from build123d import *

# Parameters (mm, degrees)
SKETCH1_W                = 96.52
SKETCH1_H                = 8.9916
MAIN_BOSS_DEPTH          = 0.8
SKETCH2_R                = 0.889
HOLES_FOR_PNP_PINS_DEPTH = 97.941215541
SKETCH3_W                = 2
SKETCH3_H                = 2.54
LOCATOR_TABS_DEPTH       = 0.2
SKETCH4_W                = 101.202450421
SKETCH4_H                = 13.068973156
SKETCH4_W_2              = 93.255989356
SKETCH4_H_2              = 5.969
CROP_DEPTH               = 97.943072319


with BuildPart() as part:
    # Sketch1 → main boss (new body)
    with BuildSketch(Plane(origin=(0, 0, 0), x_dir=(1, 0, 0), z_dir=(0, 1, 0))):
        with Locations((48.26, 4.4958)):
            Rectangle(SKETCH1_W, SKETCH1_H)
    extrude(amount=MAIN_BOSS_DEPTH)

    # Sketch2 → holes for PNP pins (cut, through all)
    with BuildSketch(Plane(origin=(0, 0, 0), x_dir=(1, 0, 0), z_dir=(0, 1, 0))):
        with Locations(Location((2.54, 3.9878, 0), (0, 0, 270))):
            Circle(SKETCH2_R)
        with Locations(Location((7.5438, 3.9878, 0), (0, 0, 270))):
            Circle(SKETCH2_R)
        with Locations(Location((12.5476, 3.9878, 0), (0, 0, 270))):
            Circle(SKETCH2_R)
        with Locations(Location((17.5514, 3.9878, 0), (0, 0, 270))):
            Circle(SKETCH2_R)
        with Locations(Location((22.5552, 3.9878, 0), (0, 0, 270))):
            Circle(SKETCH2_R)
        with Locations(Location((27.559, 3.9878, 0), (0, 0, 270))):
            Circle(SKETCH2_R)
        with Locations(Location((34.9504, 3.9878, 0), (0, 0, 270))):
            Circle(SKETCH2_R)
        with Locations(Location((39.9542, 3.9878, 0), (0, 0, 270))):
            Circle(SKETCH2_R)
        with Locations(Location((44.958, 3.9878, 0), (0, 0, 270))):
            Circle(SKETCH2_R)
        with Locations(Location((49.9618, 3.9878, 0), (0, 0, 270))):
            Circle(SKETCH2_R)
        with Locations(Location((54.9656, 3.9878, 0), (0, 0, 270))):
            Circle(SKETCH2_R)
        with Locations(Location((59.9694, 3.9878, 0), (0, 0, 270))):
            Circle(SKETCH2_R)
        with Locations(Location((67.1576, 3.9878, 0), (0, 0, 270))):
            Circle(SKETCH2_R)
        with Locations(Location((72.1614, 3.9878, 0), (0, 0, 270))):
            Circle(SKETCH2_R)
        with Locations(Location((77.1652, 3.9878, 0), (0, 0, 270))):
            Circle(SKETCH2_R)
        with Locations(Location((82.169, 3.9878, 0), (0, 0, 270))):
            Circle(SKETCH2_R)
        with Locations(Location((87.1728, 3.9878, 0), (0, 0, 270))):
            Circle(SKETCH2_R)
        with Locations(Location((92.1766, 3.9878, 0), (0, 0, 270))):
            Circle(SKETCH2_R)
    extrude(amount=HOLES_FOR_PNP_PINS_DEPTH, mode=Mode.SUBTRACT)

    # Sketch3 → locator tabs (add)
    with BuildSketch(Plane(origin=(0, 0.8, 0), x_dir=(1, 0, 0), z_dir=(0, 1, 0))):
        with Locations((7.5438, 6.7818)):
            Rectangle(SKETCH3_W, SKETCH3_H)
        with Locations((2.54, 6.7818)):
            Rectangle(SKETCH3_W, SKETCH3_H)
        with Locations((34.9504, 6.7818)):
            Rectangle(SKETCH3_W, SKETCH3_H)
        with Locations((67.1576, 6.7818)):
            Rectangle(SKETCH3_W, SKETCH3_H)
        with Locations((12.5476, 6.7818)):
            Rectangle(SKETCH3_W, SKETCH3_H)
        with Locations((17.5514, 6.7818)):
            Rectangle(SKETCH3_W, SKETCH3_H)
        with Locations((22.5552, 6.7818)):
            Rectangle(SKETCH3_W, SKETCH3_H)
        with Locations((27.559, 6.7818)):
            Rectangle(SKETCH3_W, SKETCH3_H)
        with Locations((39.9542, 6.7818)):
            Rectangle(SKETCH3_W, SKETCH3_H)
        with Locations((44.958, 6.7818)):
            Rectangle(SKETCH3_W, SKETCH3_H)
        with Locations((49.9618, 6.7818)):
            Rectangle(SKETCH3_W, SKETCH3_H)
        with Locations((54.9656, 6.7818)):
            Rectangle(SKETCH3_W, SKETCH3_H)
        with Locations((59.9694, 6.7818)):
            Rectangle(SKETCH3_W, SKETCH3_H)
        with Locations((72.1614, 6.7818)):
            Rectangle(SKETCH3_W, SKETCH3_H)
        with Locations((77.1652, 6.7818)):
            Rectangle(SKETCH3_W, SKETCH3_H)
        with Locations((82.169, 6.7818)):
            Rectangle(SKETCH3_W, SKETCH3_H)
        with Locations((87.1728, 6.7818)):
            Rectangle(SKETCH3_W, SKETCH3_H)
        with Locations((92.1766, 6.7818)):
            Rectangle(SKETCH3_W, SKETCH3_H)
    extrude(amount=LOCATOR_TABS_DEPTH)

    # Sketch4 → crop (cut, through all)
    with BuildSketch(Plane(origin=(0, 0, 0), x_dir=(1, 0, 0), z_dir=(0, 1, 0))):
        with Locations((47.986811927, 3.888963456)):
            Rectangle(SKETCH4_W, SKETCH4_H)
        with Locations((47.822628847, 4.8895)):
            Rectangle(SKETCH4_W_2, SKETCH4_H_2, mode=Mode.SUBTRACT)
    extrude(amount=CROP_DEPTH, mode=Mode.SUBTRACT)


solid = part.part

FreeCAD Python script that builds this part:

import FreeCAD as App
import Part
import Sketcher

V = App.Vector
Q = App.Units.Quantity

doc = App.newDocument("Part")
body = doc.addObject("PartDesign::Body", "Body")

# Sketch on XZ plane
sketch1 = body.newObject("Sketcher::SketchObject", "Sketch")
sketch1.AttachmentSupport = (doc.getObject("XZ_Plane"), [""])
sketch1.MapMode = "FlatFace"
sketch1.addGeometry(Part.LineSegment(V(0, -9, 0), V(0, 0, 0)), False)
sketch1.addGeometry(Part.LineSegment(V(0, 0, 0), V(97, 0, 0)), False)
sketch1.addGeometry(Part.LineSegment(V(97, 0, 0), V(97, -9, 0)), False)
sketch1.addGeometry(Part.LineSegment(V(97, -9, 0), V(0, -9, 0)), False)
sketch1.addConstraint(Sketcher.Constraint("Coincident", 0, 2, 1, 1))
sketch1.addConstraint(Sketcher.Constraint("Coincident", 1, 2, 2, 1))
sketch1.addConstraint(Sketcher.Constraint("Coincident", 2, 2, 3, 1))
sketch1.addConstraint(Sketcher.Constraint("Coincident", 3, 2, 0, 1))
sketch1.addConstraint(Sketcher.Constraint("Vertical", 0))
sketch1.addConstraint(Sketcher.Constraint("Horizontal", 1))
sketch1.addConstraint(Sketcher.Constraint("Vertical", 2))
sketch1.addConstraint(Sketcher.Constraint("Horizontal", 3))
sketch1.addConstraint(Sketcher.Constraint("Coincident", 0, 2, -1, 1))
sketch1.addConstraint(Sketcher.Constraint("DistanceX", 1, 1, 1, 2, Q("3.8 in")))
sketch1.addConstraint(Sketcher.Constraint("DistanceY", 0, 1, 0, 2, Q("0.354 in")))
pad1 = body.newObject("PartDesign::Pad", "Pad")
pad1.Profile = sketch1
pad1.Length = 0.8
pad1.Reversed = True

# Sketch on XZ plane
sketch2 = body.newObject("Sketcher::SketchObject", "Sketch001")
sketch2.AttachmentSupport = (doc.getObject("XZ_Plane"), [""])
sketch2.MapMode = "FlatFace"
sketch2.addGeometry(Part.Circle(V(2.5, -4, 0), V(0, 0, 1), 0.9), False)
sketch2.addGeometry(Part.Circle(V(7.5, -4, 0), V(0, 0, 1), 0.9), False)
sketch2.addGeometry(Part.Circle(V(12.5, -4, 0), V(0, 0, 1), 0.9), False)
sketch2.addGeometry(Part.Circle(V(17.6, -4, 0), V(0, 0, 1), 0.9), False)
sketch2.addGeometry(Part.Circle(V(22.6, -4, 0), V(0, 0, 1), 0.9), False)
sketch2.addGeometry(Part.Circle(V(27.6, -4, 0), V(0, 0, 1), 0.9), False)
sketch2.addGeometry(Part.Circle(V(35, -4, 0), V(0, 0, 1), 0.9), False)
sketch2.addGeometry(Part.Circle(V(40, -4, 0), V(0, 0, 1), 0.9), False)
sketch2.addGeometry(Part.Circle(V(45, -4, 0), V(0, 0, 1), 0.9), False)
sketch2.addGeometry(Part.Circle(V(50, -4, 0), V(0, 0, 1), 0.9), False)
sketch2.addGeometry(Part.Circle(V(55, -4, 0), V(0, 0, 1), 0.9), False)
sketch2.addGeometry(Part.Circle(V(60, -4, 0), V(0, 0, 1), 0.9), False)
sketch2.addGeometry(Part.Circle(V(67.2, -4, 0), V(0, 0, 1), 0.9), False)
sketch2.addGeometry(Part.Circle(V(72.2, -4, 0), V(0, 0, 1), 0.9), False)
sketch2.addGeometry(Part.Circle(V(77.2, -4, 0), V(0, 0, 1), 0.9), False)
sketch2.addGeometry(Part.Circle(V(82.2, -4, 0), V(0, 0, 1), 0.9), False)
sketch2.addGeometry(Part.Circle(V(87.2, -4, 0), V(0, 0, 1), 0.9), False)
sketch2.addGeometry(Part.Circle(V(92.2, -4, 0), V(0, 0, 1), 0.9), False)
sketch2.addConstraint(Sketcher.Constraint("Equal", 0, 1))
sketch2.addConstraint(Sketcher.Constraint("Equal", 1, 2))
sketch2.addConstraint(Sketcher.Constraint("Equal", 2, 3))
sketch2.addConstraint(Sketcher.Constraint("Equal", 3, 4))
sketch2.addConstraint(Sketcher.Constraint("Equal", 4, 5))
sketch2.addConstraint(Sketcher.Constraint("Equal", 5, 6))
sketch2.addConstraint(Sketcher.Constraint("Equal", 6, 7))
sketch2.addConstraint(Sketcher.Constraint("Equal", 7, 8))
sketch2.addConstraint(Sketcher.Constraint("Equal", 8, 9))
sketch2.addConstraint(Sketcher.Constraint("Equal", 9, 10))
sketch2.addConstraint(Sketcher.Constraint("Equal", 10, 11))
sketch2.addConstraint(Sketcher.Constraint("Equal", 11, 12))
sketch2.addConstraint(Sketcher.Constraint("Equal", 12, 13))
sketch2.addConstraint(Sketcher.Constraint("Equal", 13, 14))
sketch2.addConstraint(Sketcher.Constraint("Equal", 14, 15))
sketch2.addConstraint(Sketcher.Constraint("Equal", 15, 16))
sketch2.addConstraint(Sketcher.Constraint("Equal", 16, 17))
sketch2.addConstraint(Sketcher.Constraint("Horizontal", 0, 3, 1, 3))
sketch2.addConstraint(Sketcher.Constraint("Horizontal", 1, 3, 2, 3))
sketch2.addConstraint(Sketcher.Constraint("Horizontal", 2, 3, 3, 3))
sketch2.addConstraint(Sketcher.Constraint("Horizontal", 3, 3, 4, 3))
sketch2.addConstraint(Sketcher.Constraint("Horizontal", 4, 3, 5, 3))
sketch2.addConstraint(Sketcher.Constraint("Horizontal", 5, 3, 6, 3))
sketch2.addConstraint(Sketcher.Constraint("Horizontal", 6, 3, 7, 3))
sketch2.addConstraint(Sketcher.Constraint("Horizontal", 7, 3, 8, 3))
sketch2.addConstraint(Sketcher.Constraint("Horizontal", 8, 3, 9, 3))
sketch2.addConstraint(Sketcher.Constraint("Horizontal", 9, 3, 10, 3))
sketch2.addConstraint(Sketcher.Constraint("Horizontal", 10, 3, 11, 3))
sketch2.addConstraint(Sketcher.Constraint("Horizontal", 11, 3, 12, 3))
sketch2.addConstraint(Sketcher.Constraint("Horizontal", 12, 3, 13, 3))
sketch2.addConstraint(Sketcher.Constraint("Horizontal", 13, 3, 14, 3))
sketch2.addConstraint(Sketcher.Constraint("Horizontal", 14, 3, 15, 3))
sketch2.addConstraint(Sketcher.Constraint("Horizontal", 15, 3, 16, 3))
sketch2.addConstraint(Sketcher.Constraint("Horizontal", 16, 3, 17, 3))
sketch2.addConstraint(Sketcher.Constraint("Diameter", 0, Q("0.07 in")))
sketch2.addConstraint(Sketcher.Constraint("DistanceX", -1, 1, 0, 3, Q("0.1 in")))
sketch2.addConstraint(Sketcher.Constraint("DistanceX", -1, 1, 8, 3, Q("1.77 in")))
sketch2.addConstraint(Sketcher.Constraint("DistanceX", 10, 3, 12, 3, Q("0.48 in")))
sketch2.addConstraint(Sketcher.Constraint("DistanceX", 11, 3, 13, 3, Q("0.48 in")))
sketch2.addConstraint(Sketcher.Constraint("DistanceY", 0, 3, -1, 1, Q("0.157 in")))
sketch2.addConstraint(Sketcher.Constraint("DistanceX", -1, 1, 1, 3, Q("0.297 in")))
sketch2.addConstraint(Sketcher.Constraint("DistanceX", -1, 1, 2, 3, Q("0.494 in")))
sketch2.addConstraint(Sketcher.Constraint("DistanceX", -1, 1, 3, 3, Q("0.691 in")))
sketch2.addConstraint(Sketcher.Constraint("DistanceX", -1, 1, 4, 3, Q("0.888 in")))
sketch2.addConstraint(Sketcher.Constraint("DistanceX", -1, 1, 5, 3, Q("1.085 in")))
sketch2.addConstraint(Sketcher.Constraint("DistanceX", -1, 1, 6, 3, Q("1.376 in")))
sketch2.addConstraint(Sketcher.Constraint("DistanceX", -1, 1, 7, 3, Q("1.573 in")))
sketch2.addConstraint(Sketcher.Constraint("DistanceX", -1, 1, 9, 3, Q("1.967 in")))
sketch2.addConstraint(Sketcher.Constraint("DistanceX", -1, 1, 10, 3, Q("2.164 in")))
sketch2.addConstraint(Sketcher.Constraint("DistanceX", -1, 1, 11, 3, Q("2.361 in")))
sketch2.addConstraint(Sketcher.Constraint("DistanceX", -1, 1, 14, 3, Q("3.038 in")))
sketch2.addConstraint(Sketcher.Constraint("DistanceX", -1, 1, 15, 3, Q("3.235 in")))
sketch2.addConstraint(Sketcher.Constraint("DistanceX", -1, 1, 16, 3, Q("3.432 in")))
sketch2.addConstraint(Sketcher.Constraint("DistanceX", -1, 1, 17, 3, Q("3.629 in")))
pocket1 = body.newObject("PartDesign::Pocket", "Pocket")
pocket1.Profile = sketch2
pocket1.Type = "ThroughAll"

# Sketch on XZ plane
sketch3 = body.newObject("Sketcher::SketchObject", "Sketch002")
sketch3.AttachmentSupport = (doc.getObject("XZ_Plane"), [""])
sketch3.MapMode = "FlatFace"
sketch3.AttachmentOffset = App.Placement(V(0, 0, -0.8), App.Rotation())
sketch3.addGeometry(Part.LineSegment(V(6.5, -8.1, 0), V(6.5, -5.5, 0)), False)
sketch3.addGeometry(Part.LineSegment(V(6.5, -5.5, 0), V(8.5, -5.5, 0)), False)
sketch3.addGeometry(Part.LineSegment(V(8.5, -5.5, 0), V(8.5, -8.1, 0)), False)
sketch3.addGeometry(Part.LineSegment(V(8.5, -8.1, 0), V(6.5, -8.1, 0)), False)
sketch3.addGeometry(Part.LineSegment(V(1.5, -8.1, 0), V(1.5, -5.5, 0)), False)
sketch3.addGeometry(Part.LineSegment(V(1.5, -5.5, 0), V(3.5, -5.5, 0)), False)
sketch3.addGeometry(Part.LineSegment(V(3.5, -5.5, 0), V(3.5, -8.1, 0)), False)
sketch3.addGeometry(Part.LineSegment(V(3.5, -8.1, 0), V(1.5, -8.1, 0)), False)
sketch3.addGeometry(Part.LineSegment(V(34, -8.1, 0), V(34, -5.5, 0)), False)
sketch3.addGeometry(Part.LineSegment(V(34, -5.5, 0), V(36, -5.5, 0)), False)
sketch3.addGeometry(Part.LineSegment(V(36, -5.5, 0), V(36, -8.1, 0)), False)
sketch3.addGeometry(Part.LineSegment(V(36, -8.1, 0), V(34, -8.1, 0)), False)
sketch3.addGeometry(Part.LineSegment(V(66.2, -8.1, 0), V(66.2, -5.5, 0)), False)
sketch3.addGeometry(Part.LineSegment(V(66.2, -5.5, 0), V(68.2, -5.5, 0)), False)
sketch3.addGeometry(Part.LineSegment(V(68.2, -5.5, 0), V(68.2, -8.1, 0)), False)
sketch3.addGeometry(Part.LineSegment(V(68.2, -8.1, 0), V(66.2, -8.1, 0)), False)
sketch3.addGeometry(Part.LineSegment(V(11.5, -8.1, 0), V(11.5, -5.5, 0)), False)
sketch3.addGeometry(Part.LineSegment(V(11.5, -5.5, 0), V(13.5, -5.5, 0)), False)
sketch3.addGeometry(Part.LineSegment(V(13.5, -5.5, 0), V(13.5, -8.1, 0)), False)
sketch3.addGeometry(Part.LineSegment(V(13.5, -8.1, 0), V(11.5, -8.1, 0)), False)
sketch3.addGeometry(Part.LineSegment(V(16.6, -8.1, 0), V(16.6, -5.5, 0)), False)
sketch3.addGeometry(Part.LineSegment(V(16.6, -5.5, 0), V(18.6, -5.5, 0)), False)
sketch3.addGeometry(Part.LineSegment(V(18.6, -5.5, 0), V(18.6, -8.1, 0)), False)
sketch3.addGeometry(Part.LineSegment(V(18.6, -8.1, 0), V(16.6, -8.1, 0)), False)
sketch3.addGeometry(Part.LineSegment(V(21.6, -8.1, 0), V(21.6, -5.5, 0)), False)
sketch3.addGeometry(Part.LineSegment(V(21.6, -5.5, 0), V(23.6, -5.5, 0)), False)
sketch3.addGeometry(Part.LineSegment(V(23.6, -5.5, 0), V(23.6, -8.1, 0)), False)
sketch3.addGeometry(Part.LineSegment(V(23.6, -8.1, 0), V(21.6, -8.1, 0)), False)
sketch3.addGeometry(Part.LineSegment(V(26.6, -8.1, 0), V(26.6, -5.5, 0)), False)
sketch3.addGeometry(Part.LineSegment(V(26.6, -5.5, 0), V(28.6, -5.5, 0)), False)
sketch3.addGeometry(Part.LineSegment(V(28.6, -5.5, 0), V(28.6, -8.1, 0)), False)
sketch3.addGeometry(Part.LineSegment(V(28.6, -8.1, 0), V(26.6, -8.1, 0)), False)
sketch3.addGeometry(Part.LineSegment(V(39, -8.1, 0), V(39, -5.5, 0)), False)
sketch3.addGeometry(Part.LineSegment(V(39, -5.5, 0), V(41, -5.5, 0)), False)
sketch3.addGeometry(Part.LineSegment(V(41, -5.5, 0), V(41, -8.1, 0)), False)
sketch3.addGeometry(Part.LineSegment(V(41, -8.1, 0), V(39, -8.1, 0)), False)
sketch3.addGeometry(Part.LineSegment(V(44, -8.1, 0), V(44, -5.5, 0)), False)
sketch3.addGeometry(Part.LineSegment(V(44, -5.5, 0), V(46, -5.5, 0)), False)
sketch3.addGeometry(Part.LineSegment(V(46, -5.5, 0), V(46, -8.1, 0)), False)
sketch3.addGeometry(Part.LineSegment(V(46, -8.1, 0), V(44, -8.1, 0)), False)
sketch3.addGeometry(Part.LineSegment(V(49, -8.1, 0), V(49, -5.5, 0)), False)
sketch3.addGeometry(Part.LineSegment(V(49, -5.5, 0), V(51, -5.5, 0)), False)
sketch3.addGeometry(Part.LineSegment(V(51, -5.5, 0), V(51, -8.1, 0)), False)
sketch3.addGeometry(Part.LineSegment(V(51, -8.1, 0), V(49, -8.1, 0)), False)
sketch3.addGeometry(Part.LineSegment(V(54, -8.1, 0), V(54, -5.5, 0)), False)
sketch3.addGeometry(Part.LineSegment(V(54, -5.5, 0), V(56, -5.5, 0)), False)
sketch3.addGeometry(Part.LineSegment(V(56, -5.5, 0), V(56, -8.1, 0)), False)
sketch3.addGeometry(Part.LineSegment(V(56, -8.1, 0), V(54, -8.1, 0)), False)
sketch3.addGeometry(Part.LineSegment(V(59, -8.1, 0), V(59, -5.5, 0)), False)
sketch3.addGeometry(Part.LineSegment(V(59, -5.5, 0), V(61, -5.5, 0)), False)
sketch3.addGeometry(Part.LineSegment(V(61, -5.5, 0), V(61, -8.1, 0)), False)
sketch3.addGeometry(Part.LineSegment(V(61, -8.1, 0), V(59, -8.1, 0)), False)
sketch3.addGeometry(Part.LineSegment(V(71.2, -8.1, 0), V(71.2, -5.5, 0)), False)
sketch3.addGeometry(Part.LineSegment(V(71.2, -5.5, 0), V(73.2, -5.5, 0)), False)
sketch3.addGeometry(Part.LineSegment(V(73.2, -5.5, 0), V(73.2, -8.1, 0)), False)
sketch3.addGeometry(Part.LineSegment(V(73.2, -8.1, 0), V(71.2, -8.1, 0)), False)
sketch3.addGeometry(Part.LineSegment(V(76.2, -8.1, 0), V(76.2, -5.5, 0)), False)
sketch3.addGeometry(Part.LineSegment(V(76.2, -5.5, 0), V(78.2, -5.5, 0)), False)
sketch3.addGeometry(Part.LineSegment(V(78.2, -5.5, 0), V(78.2, -8.1, 0)), False)
sketch3.addGeometry(Part.LineSegment(V(78.2, -8.1, 0), V(76.2, -8.1, 0)), False)
sketch3.addGeometry(Part.LineSegment(V(81.2, -8.1, 0), V(81.2, -5.5, 0)), False)
sketch3.addGeometry(Part.LineSegment(V(81.2, -5.5, 0), V(83.2, -5.5, 0)), False)
sketch3.addGeometry(Part.LineSegment(V(83.2, -5.5, 0), V(83.2, -8.1, 0)), False)
sketch3.addGeometry(Part.LineSegment(V(83.2, -8.1, 0), V(81.2, -8.1, 0)), False)
sketch3.addGeometry(Part.LineSegment(V(86.2, -8.1, 0), V(86.2, -5.5, 0)), False)
sketch3.addGeometry(Part.LineSegment(V(86.2, -5.5, 0), V(88.2, -5.5, 0)), False)
sketch3.addGeometry(Part.LineSegment(V(88.2, -5.5, 0), V(88.2, -8.1, 0)), False)
sketch3.addGeometry(Part.LineSegment(V(88.2, -8.1, 0), V(86.2, -8.1, 0)), False)
sketch3.addGeometry(Part.LineSegment(V(91.2, -8.1, 0), V(91.2, -5.5, 0)), False)
sketch3.addGeometry(Part.LineSegment(V(91.2, -5.5, 0), V(93.2, -5.5, 0)), False)
sketch3.addGeometry(Part.LineSegment(V(93.2, -5.5, 0), V(93.2, -8.1, 0)), False)
sketch3.addGeometry(Part.LineSegment(V(93.2, -8.1, 0), V(91.2, -8.1, 0)), False)
sketch3.addConstraint(Sketcher.Constraint("Coincident", 0, 2, 1, 1))
sketch3.addConstraint(Sketcher.Constraint("Coincident", 1, 2, 2, 1))
sketch3.addConstraint(Sketcher.Constraint("Coincident", 2, 2, 3, 1))
sketch3.addConstraint(Sketcher.Constraint("Coincident", 3, 2, 0, 1))
sketch3.addConstraint(Sketcher.Constraint("Coincident", 4, 2, 5, 1))
sketch3.addConstraint(Sketcher.Constraint("Coincident", 5, 2, 6, 1))
sketch3.addConstraint(Sketcher.Constraint("Coincident", 6, 2, 7, 1))
sketch3.addConstraint(Sketcher.Constraint("Coincident", 7, 2, 4, 1))
sketch3.addConstraint(Sketcher.Constraint("Coincident", 8, 2, 9, 1))
sketch3.addConstraint(Sketcher.Constraint("Coincident", 9, 2, 10, 1))
sketch3.addConstraint(Sketcher.Constraint("Coincident", 10, 2, 11, 1))
sketch3.addConstraint(Sketcher.Constraint("Coincident", 11, 2, 8, 1))
sketch3.addConstraint(Sketcher.Constraint("Coincident", 12, 2, 13, 1))
sketch3.addConstraint(Sketcher.Constraint("Coincident", 13, 2, 14, 1))
sketch3.addConstraint(Sketcher.Constraint("Coincident", 14, 2, 15, 1))
sketch3.addConstraint(Sketcher.Constraint("Coincident", 15, 2, 12, 1))
sketch3.addConstraint(Sketcher.Constraint("Coincident", 16, 2, 17, 1))
sketch3.addConstraint(Sketcher.Constraint("Coincident", 17, 2, 18, 1))
sketch3.addConstraint(Sketcher.Constraint("Coincident", 18, 2, 19, 1))
sketch3.addConstraint(Sketcher.Constraint("Coincident", 19, 2, 16, 1))
sketch3.addConstraint(Sketcher.Constraint("Coincident", 20, 2, 21, 1))
sketch3.addConstraint(Sketcher.Constraint("Coincident", 21, 2, 22, 1))
sketch3.addConstraint(Sketcher.Constraint("Coincident", 22, 2, 23, 1))
sketch3.addConstraint(Sketcher.Constraint("Coincident", 23, 2, 20, 1))
sketch3.addConstraint(Sketcher.Constraint("Coincident", 24, 2, 25, 1))
sketch3.addConstraint(Sketcher.Constraint("Coincident", 25, 2, 26, 1))
sketch3.addConstraint(Sketcher.Constraint("Coincident", 26, 2, 27, 1))
sketch3.addConstraint(Sketcher.Constraint("Coincident", 27, 2, 24, 1))
sketch3.addConstraint(Sketcher.Constraint("Coincident", 28, 2, 29, 1))
sketch3.addConstraint(Sketcher.Constraint("Coincident", 29, 2, 30, 1))
sketch3.addConstraint(Sketcher.Constraint("Coincident", 30, 2, 31, 1))
sketch3.addConstraint(Sketcher.Constraint("Coincident", 31, 2, 28, 1))
sketch3.addConstraint(Sketcher.Constraint("Coincident", 32, 2, 33, 1))
sketch3.addConstraint(Sketcher.Constraint("Coincident", 33, 2, 34, 1))
sketch3.addConstraint(Sketcher.Constraint("Coincident", 34, 2, 35, 1))
sketch3.addConstraint(Sketcher.Constraint("Coincident", 35, 2, 32, 1))
sketch3.addConstraint(Sketcher.Constraint("Coincident", 36, 2, 37, 1))
sketch3.addConstraint(Sketcher.Constraint("Coincident", 37, 2, 38, 1))
sketch3.addConstraint(Sketcher.Constraint("Coincident", 38, 2, 39, 1))
sketch3.addConstraint(Sketcher.Constraint("Coincident", 39, 2, 36, 1))
sketch3.addConstraint(Sketcher.Constraint("Coincident", 40, 2, 41, 1))
sketch3.addConstraint(Sketcher.Constraint("Coincident", 41, 2, 42, 1))
sketch3.addConstraint(Sketcher.Constraint("Coincident", 42, 2, 43, 1))
sketch3.addConstraint(Sketcher.Constraint("Coincident", 43, 2, 40, 1))
sketch3.addConstraint(Sketcher.Constraint("Coincident", 44, 2, 45, 1))
sketch3.addConstraint(Sketcher.Constraint("Coincident", 45, 2, 46, 1))
sketch3.addConstraint(Sketcher.Constraint("Coincident", 46, 2, 47, 1))
sketch3.addConstraint(Sketcher.Constraint("Coincident", 47, 2, 44, 1))
sketch3.addConstraint(Sketcher.Constraint("Coincident", 48, 2, 49, 1))
sketch3.addConstraint(Sketcher.Constraint("Coincident", 49, 2, 50, 1))
sketch3.addConstraint(Sketcher.Constraint("Coincident", 50, 2, 51, 1))
sketch3.addConstraint(Sketcher.Constraint("Coincident", 51, 2, 48, 1))
sketch3.addConstraint(Sketcher.Constraint("Coincident", 52, 2, 53, 1))
sketch3.addConstraint(Sketcher.Constraint("Coincident", 53, 2, 54, 1))
sketch3.addConstraint(Sketcher.Constraint("Coincident", 54, 2, 55, 1))
sketch3.addConstraint(Sketcher.Constraint("Coincident", 55, 2, 52, 1))
sketch3.addConstraint(Sketcher.Constraint("Coincident", 56, 2, 57, 1))
sketch3.addConstraint(Sketcher.Constraint("Coincident", 57, 2, 58, 1))
sketch3.addConstraint(Sketcher.Constraint("Coincident", 58, 2, 59, 1))
sketch3.addConstraint(Sketcher.Constraint("Coincident", 59, 2, 56, 1))
sketch3.addConstraint(Sketcher.Constraint("Coincident", 60, 2, 61, 1))
sketch3.addConstraint(Sketcher.Constraint("Coincident", 61, 2, 62, 1))
sketch3.addConstraint(Sketcher.Constraint("Coincident", 62, 2, 63, 1))
sketch3.addConstraint(Sketcher.Constraint("Coincident", 63, 2, 60, 1))
sketch3.addConstraint(Sketcher.Constraint("Coincident", 64, 2, 65, 1))
sketch3.addConstraint(Sketcher.Constraint("Coincident", 65, 2, 66, 1))
sketch3.addConstraint(Sketcher.Constraint("Coincident", 66, 2, 67, 1))
sketch3.addConstraint(Sketcher.Constraint("Coincident", 67, 2, 64, 1))
sketch3.addConstraint(Sketcher.Constraint("Coincident", 68, 2, 69, 1))
sketch3.addConstraint(Sketcher.Constraint("Coincident", 69, 2, 70, 1))
sketch3.addConstraint(Sketcher.Constraint("Coincident", 70, 2, 71, 1))
sketch3.addConstraint(Sketcher.Constraint("Coincident", 71, 2, 68, 1))
sketch3.addConstraint(Sketcher.Constraint("Vertical", 0))
sketch3.addConstraint(Sketcher.Constraint("Horizontal", 1))
sketch3.addConstraint(Sketcher.Constraint("Vertical", 2))
sketch3.addConstraint(Sketcher.Constraint("Horizontal", 3))
sketch3.addConstraint(Sketcher.Constraint("Vertical", 4))
sketch3.addConstraint(Sketcher.Constraint("Horizontal", 5))
sketch3.addConstraint(Sketcher.Constraint("Vertical", 6))
sketch3.addConstraint(Sketcher.Constraint("Horizontal", 7))
sketch3.addConstraint(Sketcher.Constraint("Vertical", 8))
sketch3.addConstraint(Sketcher.Constraint("Horizontal", 9))
sketch3.addConstraint(Sketcher.Constraint("Vertical", 10))
sketch3.addConstraint(Sketcher.Constraint("Horizontal", 11))
sketch3.addConstraint(Sketcher.Constraint("Vertical", 12))
sketch3.addConstraint(Sketcher.Constraint("Horizontal", 13))
sketch3.addConstraint(Sketcher.Constraint("Vertical", 14))
sketch3.addConstraint(Sketcher.Constraint("Horizontal", 15))
sketch3.addConstraint(Sketcher.Constraint("Vertical", 16))
sketch3.addConstraint(Sketcher.Constraint("Horizontal", 17))
sketch3.addConstraint(Sketcher.Constraint("Vertical", 18))
sketch3.addConstraint(Sketcher.Constraint("Horizontal", 19))
sketch3.addConstraint(Sketcher.Constraint("Vertical", 20))
sketch3.addConstraint(Sketcher.Constraint("Horizontal", 21))
sketch3.addConstraint(Sketcher.Constraint("Vertical", 22))
sketch3.addConstraint(Sketcher.Constraint("Horizontal", 23))
sketch3.addConstraint(Sketcher.Constraint("Vertical", 24))
sketch3.addConstraint(Sketcher.Constraint("Horizontal", 25))
sketch3.addConstraint(Sketcher.Constraint("Vertical", 26))
sketch3.addConstraint(Sketcher.Constraint("Horizontal", 27))
sketch3.addConstraint(Sketcher.Constraint("Vertical", 28))
sketch3.addConstraint(Sketcher.Constraint("Horizontal", 29))
sketch3.addConstraint(Sketcher.Constraint("Vertical", 30))
sketch3.addConstraint(Sketcher.Constraint("Horizontal", 31))
sketch3.addConstraint(Sketcher.Constraint("Vertical", 32))
sketch3.addConstraint(Sketcher.Constraint("Horizontal", 33))
sketch3.addConstraint(Sketcher.Constraint("Vertical", 34))
sketch3.addConstraint(Sketcher.Constraint("Horizontal", 35))
sketch3.addConstraint(Sketcher.Constraint("Vertical", 36))
sketch3.addConstraint(Sketcher.Constraint("Horizontal", 37))
sketch3.addConstraint(Sketcher.Constraint("Vertical", 38))
sketch3.addConstraint(Sketcher.Constraint("Horizontal", 39))
sketch3.addConstraint(Sketcher.Constraint("Vertical", 40))
sketch3.addConstraint(Sketcher.Constraint("Horizontal", 41))
sketch3.addConstraint(Sketcher.Constraint("Vertical", 42))
sketch3.addConstraint(Sketcher.Constraint("Horizontal", 43))
sketch3.addConstraint(Sketcher.Constraint("Vertical", 44))
sketch3.addConstraint(Sketcher.Constraint("Horizontal", 45))
sketch3.addConstraint(Sketcher.Constraint("Vertical", 46))
sketch3.addConstraint(Sketcher.Constraint("Horizontal", 47))
sketch3.addConstraint(Sketcher.Constraint("Vertical", 48))
sketch3.addConstraint(Sketcher.Constraint("Horizontal", 49))
sketch3.addConstraint(Sketcher.Constraint("Vertical", 50))
sketch3.addConstraint(Sketcher.Constraint("Horizontal", 51))
sketch3.addConstraint(Sketcher.Constraint("Vertical", 52))
sketch3.addConstraint(Sketcher.Constraint("Horizontal", 53))
sketch3.addConstraint(Sketcher.Constraint("Vertical", 54))
sketch3.addConstraint(Sketcher.Constraint("Horizontal", 55))
sketch3.addConstraint(Sketcher.Constraint("Vertical", 56))
sketch3.addConstraint(Sketcher.Constraint("Horizontal", 57))
sketch3.addConstraint(Sketcher.Constraint("Vertical", 58))
sketch3.addConstraint(Sketcher.Constraint("Horizontal", 59))
sketch3.addConstraint(Sketcher.Constraint("Vertical", 60))
sketch3.addConstraint(Sketcher.Constraint("Horizontal", 61))
sketch3.addConstraint(Sketcher.Constraint("Vertical", 62))
sketch3.addConstraint(Sketcher.Constraint("Horizontal", 63))
sketch3.addConstraint(Sketcher.Constraint("Vertical", 64))
sketch3.addConstraint(Sketcher.Constraint("Horizontal", 65))
sketch3.addConstraint(Sketcher.Constraint("Vertical", 66))
sketch3.addConstraint(Sketcher.Constraint("Horizontal", 67))
sketch3.addConstraint(Sketcher.Constraint("Vertical", 68))
sketch3.addConstraint(Sketcher.Constraint("Horizontal", 69))
sketch3.addConstraint(Sketcher.Constraint("Vertical", 70))
sketch3.addConstraint(Sketcher.Constraint("Horizontal", 71))
sketch3.addConstraint(Sketcher.Constraint("Horizontal", 1, 2, 4, 2))
sketch3.addConstraint(Sketcher.Constraint("Horizontal", 3, 2, 6, 2))
sketch3.addConstraint(Sketcher.Constraint("Horizontal", 5, 2, 8, 2))
sketch3.addConstraint(Sketcher.Constraint("Horizontal", 7, 2, 10, 2))
sketch3.addConstraint(Sketcher.Constraint("Horizontal", 9, 2, 12, 2))
sketch3.addConstraint(Sketcher.Constraint("Horizontal", 11, 2, 14, 2))
sketch3.addConstraint(Sketcher.Constraint("Horizontal", 13, 2, 16, 2))
sketch3.addConstraint(Sketcher.Constraint("Horizontal", 15, 2, 18, 2))
sketch3.addConstraint(Sketcher.Constraint("Horizontal", 17, 2, 20, 2))
sketch3.addConstraint(Sketcher.Constraint("Horizontal", 19, 2, 22, 2))
sketch3.addConstraint(Sketcher.Constraint("Horizontal", 21, 2, 24, 2))
sketch3.addConstraint(Sketcher.Constraint("Horizontal", 23, 2, 26, 2))
sketch3.addConstraint(Sketcher.Constraint("Horizontal", 25, 2, 28, 2))
sketch3.addConstraint(Sketcher.Constraint("Horizontal", 27, 2, 30, 2))
sketch3.addConstraint(Sketcher.Constraint("Horizontal", 29, 2, 32, 2))
sketch3.addConstraint(Sketcher.Constraint("Horizontal", 31, 2, 34, 2))
sketch3.addConstraint(Sketcher.Constraint("Horizontal", 33, 2, 36, 2))
sketch3.addConstraint(Sketcher.Constraint("Horizontal", 35, 2, 38, 2))
sketch3.addConstraint(Sketcher.Constraint("Horizontal", 37, 2, 40, 2))
sketch3.addConstraint(Sketcher.Constraint("Horizontal", 39, 2, 42, 2))
sketch3.addConstraint(Sketcher.Constraint("Horizontal", 41, 2, 44, 2))
sketch3.addConstraint(Sketcher.Constraint("Horizontal", 43, 2, 46, 2))
sketch3.addConstraint(Sketcher.Constraint("Horizontal", 45, 2, 48, 2))
sketch3.addConstraint(Sketcher.Constraint("Horizontal", 47, 2, 50, 2))
sketch3.addConstraint(Sketcher.Constraint("Horizontal", 49, 2, 52, 2))
sketch3.addConstraint(Sketcher.Constraint("Horizontal", 51, 2, 54, 2))
sketch3.addConstraint(Sketcher.Constraint("Horizontal", 53, 2, 56, 2))
sketch3.addConstraint(Sketcher.Constraint("Horizontal", 55, 2, 58, 2))
sketch3.addConstraint(Sketcher.Constraint("Horizontal", 57, 2, 60, 2))
sketch3.addConstraint(Sketcher.Constraint("Horizontal", 59, 2, 62, 2))
sketch3.addConstraint(Sketcher.Constraint("Horizontal", 61, 2, 64, 2))
sketch3.addConstraint(Sketcher.Constraint("Horizontal", 63, 2, 66, 2))
sketch3.addConstraint(Sketcher.Constraint("Horizontal", 65, 2, 68, 2))
sketch3.addConstraint(Sketcher.Constraint("Horizontal", 67, 2, 70, 2))
sketch3.addConstraint(Sketcher.Constraint("Equal", 3, 5))
sketch3.addConstraint(Sketcher.Constraint("Equal", 7, 9))
sketch3.addConstraint(Sketcher.Constraint("Equal", 11, 13))
sketch3.addConstraint(Sketcher.Constraint("Equal", 15, 17))
sketch3.addConstraint(Sketcher.Constraint("Equal", 19, 21))
sketch3.addConstraint(Sketcher.Constraint("Equal", 23, 25))
sketch3.addConstraint(Sketcher.Constraint("Equal", 27, 29))
sketch3.addConstraint(Sketcher.Constraint("Equal", 31, 33))
sketch3.addConstraint(Sketcher.Constraint("Equal", 35, 37))
sketch3.addConstraint(Sketcher.Constraint("Equal", 39, 41))
sketch3.addConstraint(Sketcher.Constraint("Equal", 43, 45))
sketch3.addConstraint(Sketcher.Constraint("Equal", 47, 49))
sketch3.addConstraint(Sketcher.Constraint("Equal", 51, 53))
sketch3.addConstraint(Sketcher.Constraint("Equal", 55, 57))
sketch3.addConstraint(Sketcher.Constraint("Equal", 59, 61))
sketch3.addConstraint(Sketcher.Constraint("Equal", 63, 65))
sketch3.addConstraint(Sketcher.Constraint("Equal", 67, 69))
sketch3.addConstraint(Sketcher.Constraint("DistanceY", 0, 1, 0, 2, Q("0.1 in")))
sketch3.addConstraint(Sketcher.Constraint("DistanceY", 0, 2, -1, 1, Q("0.217 in")))
sketch3.addConstraint(Sketcher.Constraint("DistanceX", 1, 1, 1, 2, Q("2 mm")))
sketch3.addConstraint(Sketcher.Constraint("DistanceX", -1, 1, 0, 2, Q("6.5438 mm")))
sketch3.addConstraint(Sketcher.Constraint("DistanceX", -1, 1, 4, 2, Q("1.54 mm")))
sketch3.addConstraint(Sketcher.Constraint("DistanceX", -1, 1, 8, 2, Q("33.9504 mm")))
sketch3.addConstraint(Sketcher.Constraint("DistanceX", -1, 1, 12, 2, Q("66.1576 mm")))
sketch3.addConstraint(Sketcher.Constraint("DistanceX", -1, 1, 16, 2, Q("11.5476 mm")))
sketch3.addConstraint(Sketcher.Constraint("DistanceX", -1, 1, 20, 2, Q("16.5514 mm")))
sketch3.addConstraint(Sketcher.Constraint("DistanceX", -1, 1, 24, 2, Q("21.5552 mm")))
sketch3.addConstraint(Sketcher.Constraint("DistanceX", -1, 1, 28, 2, Q("26.559 mm")))
sketch3.addConstraint(Sketcher.Constraint("DistanceX", -1, 1, 32, 2, Q("38.9542 mm")))
sketch3.addConstraint(Sketcher.Constraint("DistanceX", -1, 1, 36, 2, Q("43.958 mm")))
sketch3.addConstraint(Sketcher.Constraint("DistanceX", -1, 1, 40, 2, Q("48.9618 mm")))
sketch3.addConstraint(Sketcher.Constraint("DistanceX", -1, 1, 44, 2, Q("53.9656 mm")))
sketch3.addConstraint(Sketcher.Constraint("DistanceX", -1, 1, 48, 2, Q("58.9694 mm")))
sketch3.addConstraint(Sketcher.Constraint("DistanceX", -1, 1, 52, 2, Q("71.1614 mm")))
sketch3.addConstraint(Sketcher.Constraint("DistanceX", -1, 1, 56, 2, Q("76.1652 mm")))
sketch3.addConstraint(Sketcher.Constraint("DistanceX", -1, 1, 60, 2, Q("81.169 mm")))
sketch3.addConstraint(Sketcher.Constraint("DistanceX", -1, 1, 64, 2, Q("86.1728 mm")))
sketch3.addConstraint(Sketcher.Constraint("DistanceX", -1, 1, 68, 2, Q("91.1766 mm")))
pad2 = body.newObject("PartDesign::Pad", "Pad001")
pad2.Profile = sketch3
pad2.Length = 0.2
pad2.Reversed = True

# Sketch on XZ plane
sketch4 = body.newObject("Sketcher::SketchObject", "Sketch003")
sketch4.AttachmentSupport = (doc.getObject("XZ_Plane"), [""])
sketch4.MapMode = "FlatFace"
sketch4.addGeometry(Part.LineSegment(V(-3, -10, 0), V(-3, 3, 0)), False)
sketch4.addGeometry(Part.LineSegment(V(-3, 3, 0), V(99, 3, 0)), False)
sketch4.addGeometry(Part.LineSegment(V(99, 3, 0), V(99, -10, 0)), False)
sketch4.addGeometry(Part.LineSegment(V(99, -10, 0), V(-3, -10, 0)), False)
sketch4.addGeometry(Part.LineSegment(V(94, -2, 0), V(1, -2, 0)), False)
sketch4.addGeometry(Part.LineSegment(V(1, -2, 0), V(1, -8, 0)), False)
sketch4.addGeometry(Part.LineSegment(V(1, -8, 0), V(94, -8, 0)), False)
sketch4.addGeometry(Part.LineSegment(V(94, -8, 0), V(94, -2, 0)), False)
sketch4.addConstraint(Sketcher.Constraint("Coincident", 0, 2, 1, 1))
sketch4.addConstraint(Sketcher.Constraint("Coincident", 1, 2, 2, 1))
sketch4.addConstraint(Sketcher.Constraint("Coincident", 2, 2, 3, 1))
sketch4.addConstraint(Sketcher.Constraint("Coincident", 3, 2, 0, 1))
sketch4.addConstraint(Sketcher.Constraint("Coincident", 4, 2, 5, 1))
sketch4.addConstraint(Sketcher.Constraint("Coincident", 5, 2, 6, 1))
sketch4.addConstraint(Sketcher.Constraint("Coincident", 6, 2, 7, 1))
sketch4.addConstraint(Sketcher.Constraint("Coincident", 7, 2, 4, 1))
sketch4.addConstraint(Sketcher.Constraint("Vertical", 0))
sketch4.addConstraint(Sketcher.Constraint("Horizontal", 1))
sketch4.addConstraint(Sketcher.Constraint("Vertical", 2))
sketch4.addConstraint(Sketcher.Constraint("Horizontal", 3))
sketch4.addConstraint(Sketcher.Constraint("Horizontal", 4))
sketch4.addConstraint(Sketcher.Constraint("Vertical", 5))
sketch4.addConstraint(Sketcher.Constraint("Horizontal", 6))
sketch4.addConstraint(Sketcher.Constraint("Vertical", 7))
sketch4.addConstraint(Sketcher.Constraint("DistanceY", 5, 2, 5, 1, Q("0.235 in")))
sketch4.addConstraint(Sketcher.Constraint("DistanceY", 5, 2, -1, 1, Q("0.31 in")))
sketch4.addConstraint(Sketcher.Constraint("DistanceX", 1, 1, 1, 2, Q("101.20245 mm")))
sketch4.addConstraint(Sketcher.Constraint("DistanceX", 4, 2, 4, 1, Q("93.255989 mm")))
sketch4.addConstraint(Sketcher.Constraint("DistanceY", 0, 1, 0, 2, Q("13.068973 mm")))
sketch4.addConstraint(Sketcher.Constraint("DistanceY", 2, 2, -1, 1, Q("10.42345 mm")))
sketch4.addConstraint(Sketcher.Constraint("DistanceX", 0, 2, -1, 1, Q("2.614413 mm")))
sketch4.addConstraint(Sketcher.Constraint("DistanceX", -1, 1, 4, 2, Q("1.194634 mm")))
pocket2 = body.newObject("PartDesign::Pocket", "Pocket001")
pocket2.Profile = sketch4
pocket2.Type = "ThroughAll"

doc.recompute()
